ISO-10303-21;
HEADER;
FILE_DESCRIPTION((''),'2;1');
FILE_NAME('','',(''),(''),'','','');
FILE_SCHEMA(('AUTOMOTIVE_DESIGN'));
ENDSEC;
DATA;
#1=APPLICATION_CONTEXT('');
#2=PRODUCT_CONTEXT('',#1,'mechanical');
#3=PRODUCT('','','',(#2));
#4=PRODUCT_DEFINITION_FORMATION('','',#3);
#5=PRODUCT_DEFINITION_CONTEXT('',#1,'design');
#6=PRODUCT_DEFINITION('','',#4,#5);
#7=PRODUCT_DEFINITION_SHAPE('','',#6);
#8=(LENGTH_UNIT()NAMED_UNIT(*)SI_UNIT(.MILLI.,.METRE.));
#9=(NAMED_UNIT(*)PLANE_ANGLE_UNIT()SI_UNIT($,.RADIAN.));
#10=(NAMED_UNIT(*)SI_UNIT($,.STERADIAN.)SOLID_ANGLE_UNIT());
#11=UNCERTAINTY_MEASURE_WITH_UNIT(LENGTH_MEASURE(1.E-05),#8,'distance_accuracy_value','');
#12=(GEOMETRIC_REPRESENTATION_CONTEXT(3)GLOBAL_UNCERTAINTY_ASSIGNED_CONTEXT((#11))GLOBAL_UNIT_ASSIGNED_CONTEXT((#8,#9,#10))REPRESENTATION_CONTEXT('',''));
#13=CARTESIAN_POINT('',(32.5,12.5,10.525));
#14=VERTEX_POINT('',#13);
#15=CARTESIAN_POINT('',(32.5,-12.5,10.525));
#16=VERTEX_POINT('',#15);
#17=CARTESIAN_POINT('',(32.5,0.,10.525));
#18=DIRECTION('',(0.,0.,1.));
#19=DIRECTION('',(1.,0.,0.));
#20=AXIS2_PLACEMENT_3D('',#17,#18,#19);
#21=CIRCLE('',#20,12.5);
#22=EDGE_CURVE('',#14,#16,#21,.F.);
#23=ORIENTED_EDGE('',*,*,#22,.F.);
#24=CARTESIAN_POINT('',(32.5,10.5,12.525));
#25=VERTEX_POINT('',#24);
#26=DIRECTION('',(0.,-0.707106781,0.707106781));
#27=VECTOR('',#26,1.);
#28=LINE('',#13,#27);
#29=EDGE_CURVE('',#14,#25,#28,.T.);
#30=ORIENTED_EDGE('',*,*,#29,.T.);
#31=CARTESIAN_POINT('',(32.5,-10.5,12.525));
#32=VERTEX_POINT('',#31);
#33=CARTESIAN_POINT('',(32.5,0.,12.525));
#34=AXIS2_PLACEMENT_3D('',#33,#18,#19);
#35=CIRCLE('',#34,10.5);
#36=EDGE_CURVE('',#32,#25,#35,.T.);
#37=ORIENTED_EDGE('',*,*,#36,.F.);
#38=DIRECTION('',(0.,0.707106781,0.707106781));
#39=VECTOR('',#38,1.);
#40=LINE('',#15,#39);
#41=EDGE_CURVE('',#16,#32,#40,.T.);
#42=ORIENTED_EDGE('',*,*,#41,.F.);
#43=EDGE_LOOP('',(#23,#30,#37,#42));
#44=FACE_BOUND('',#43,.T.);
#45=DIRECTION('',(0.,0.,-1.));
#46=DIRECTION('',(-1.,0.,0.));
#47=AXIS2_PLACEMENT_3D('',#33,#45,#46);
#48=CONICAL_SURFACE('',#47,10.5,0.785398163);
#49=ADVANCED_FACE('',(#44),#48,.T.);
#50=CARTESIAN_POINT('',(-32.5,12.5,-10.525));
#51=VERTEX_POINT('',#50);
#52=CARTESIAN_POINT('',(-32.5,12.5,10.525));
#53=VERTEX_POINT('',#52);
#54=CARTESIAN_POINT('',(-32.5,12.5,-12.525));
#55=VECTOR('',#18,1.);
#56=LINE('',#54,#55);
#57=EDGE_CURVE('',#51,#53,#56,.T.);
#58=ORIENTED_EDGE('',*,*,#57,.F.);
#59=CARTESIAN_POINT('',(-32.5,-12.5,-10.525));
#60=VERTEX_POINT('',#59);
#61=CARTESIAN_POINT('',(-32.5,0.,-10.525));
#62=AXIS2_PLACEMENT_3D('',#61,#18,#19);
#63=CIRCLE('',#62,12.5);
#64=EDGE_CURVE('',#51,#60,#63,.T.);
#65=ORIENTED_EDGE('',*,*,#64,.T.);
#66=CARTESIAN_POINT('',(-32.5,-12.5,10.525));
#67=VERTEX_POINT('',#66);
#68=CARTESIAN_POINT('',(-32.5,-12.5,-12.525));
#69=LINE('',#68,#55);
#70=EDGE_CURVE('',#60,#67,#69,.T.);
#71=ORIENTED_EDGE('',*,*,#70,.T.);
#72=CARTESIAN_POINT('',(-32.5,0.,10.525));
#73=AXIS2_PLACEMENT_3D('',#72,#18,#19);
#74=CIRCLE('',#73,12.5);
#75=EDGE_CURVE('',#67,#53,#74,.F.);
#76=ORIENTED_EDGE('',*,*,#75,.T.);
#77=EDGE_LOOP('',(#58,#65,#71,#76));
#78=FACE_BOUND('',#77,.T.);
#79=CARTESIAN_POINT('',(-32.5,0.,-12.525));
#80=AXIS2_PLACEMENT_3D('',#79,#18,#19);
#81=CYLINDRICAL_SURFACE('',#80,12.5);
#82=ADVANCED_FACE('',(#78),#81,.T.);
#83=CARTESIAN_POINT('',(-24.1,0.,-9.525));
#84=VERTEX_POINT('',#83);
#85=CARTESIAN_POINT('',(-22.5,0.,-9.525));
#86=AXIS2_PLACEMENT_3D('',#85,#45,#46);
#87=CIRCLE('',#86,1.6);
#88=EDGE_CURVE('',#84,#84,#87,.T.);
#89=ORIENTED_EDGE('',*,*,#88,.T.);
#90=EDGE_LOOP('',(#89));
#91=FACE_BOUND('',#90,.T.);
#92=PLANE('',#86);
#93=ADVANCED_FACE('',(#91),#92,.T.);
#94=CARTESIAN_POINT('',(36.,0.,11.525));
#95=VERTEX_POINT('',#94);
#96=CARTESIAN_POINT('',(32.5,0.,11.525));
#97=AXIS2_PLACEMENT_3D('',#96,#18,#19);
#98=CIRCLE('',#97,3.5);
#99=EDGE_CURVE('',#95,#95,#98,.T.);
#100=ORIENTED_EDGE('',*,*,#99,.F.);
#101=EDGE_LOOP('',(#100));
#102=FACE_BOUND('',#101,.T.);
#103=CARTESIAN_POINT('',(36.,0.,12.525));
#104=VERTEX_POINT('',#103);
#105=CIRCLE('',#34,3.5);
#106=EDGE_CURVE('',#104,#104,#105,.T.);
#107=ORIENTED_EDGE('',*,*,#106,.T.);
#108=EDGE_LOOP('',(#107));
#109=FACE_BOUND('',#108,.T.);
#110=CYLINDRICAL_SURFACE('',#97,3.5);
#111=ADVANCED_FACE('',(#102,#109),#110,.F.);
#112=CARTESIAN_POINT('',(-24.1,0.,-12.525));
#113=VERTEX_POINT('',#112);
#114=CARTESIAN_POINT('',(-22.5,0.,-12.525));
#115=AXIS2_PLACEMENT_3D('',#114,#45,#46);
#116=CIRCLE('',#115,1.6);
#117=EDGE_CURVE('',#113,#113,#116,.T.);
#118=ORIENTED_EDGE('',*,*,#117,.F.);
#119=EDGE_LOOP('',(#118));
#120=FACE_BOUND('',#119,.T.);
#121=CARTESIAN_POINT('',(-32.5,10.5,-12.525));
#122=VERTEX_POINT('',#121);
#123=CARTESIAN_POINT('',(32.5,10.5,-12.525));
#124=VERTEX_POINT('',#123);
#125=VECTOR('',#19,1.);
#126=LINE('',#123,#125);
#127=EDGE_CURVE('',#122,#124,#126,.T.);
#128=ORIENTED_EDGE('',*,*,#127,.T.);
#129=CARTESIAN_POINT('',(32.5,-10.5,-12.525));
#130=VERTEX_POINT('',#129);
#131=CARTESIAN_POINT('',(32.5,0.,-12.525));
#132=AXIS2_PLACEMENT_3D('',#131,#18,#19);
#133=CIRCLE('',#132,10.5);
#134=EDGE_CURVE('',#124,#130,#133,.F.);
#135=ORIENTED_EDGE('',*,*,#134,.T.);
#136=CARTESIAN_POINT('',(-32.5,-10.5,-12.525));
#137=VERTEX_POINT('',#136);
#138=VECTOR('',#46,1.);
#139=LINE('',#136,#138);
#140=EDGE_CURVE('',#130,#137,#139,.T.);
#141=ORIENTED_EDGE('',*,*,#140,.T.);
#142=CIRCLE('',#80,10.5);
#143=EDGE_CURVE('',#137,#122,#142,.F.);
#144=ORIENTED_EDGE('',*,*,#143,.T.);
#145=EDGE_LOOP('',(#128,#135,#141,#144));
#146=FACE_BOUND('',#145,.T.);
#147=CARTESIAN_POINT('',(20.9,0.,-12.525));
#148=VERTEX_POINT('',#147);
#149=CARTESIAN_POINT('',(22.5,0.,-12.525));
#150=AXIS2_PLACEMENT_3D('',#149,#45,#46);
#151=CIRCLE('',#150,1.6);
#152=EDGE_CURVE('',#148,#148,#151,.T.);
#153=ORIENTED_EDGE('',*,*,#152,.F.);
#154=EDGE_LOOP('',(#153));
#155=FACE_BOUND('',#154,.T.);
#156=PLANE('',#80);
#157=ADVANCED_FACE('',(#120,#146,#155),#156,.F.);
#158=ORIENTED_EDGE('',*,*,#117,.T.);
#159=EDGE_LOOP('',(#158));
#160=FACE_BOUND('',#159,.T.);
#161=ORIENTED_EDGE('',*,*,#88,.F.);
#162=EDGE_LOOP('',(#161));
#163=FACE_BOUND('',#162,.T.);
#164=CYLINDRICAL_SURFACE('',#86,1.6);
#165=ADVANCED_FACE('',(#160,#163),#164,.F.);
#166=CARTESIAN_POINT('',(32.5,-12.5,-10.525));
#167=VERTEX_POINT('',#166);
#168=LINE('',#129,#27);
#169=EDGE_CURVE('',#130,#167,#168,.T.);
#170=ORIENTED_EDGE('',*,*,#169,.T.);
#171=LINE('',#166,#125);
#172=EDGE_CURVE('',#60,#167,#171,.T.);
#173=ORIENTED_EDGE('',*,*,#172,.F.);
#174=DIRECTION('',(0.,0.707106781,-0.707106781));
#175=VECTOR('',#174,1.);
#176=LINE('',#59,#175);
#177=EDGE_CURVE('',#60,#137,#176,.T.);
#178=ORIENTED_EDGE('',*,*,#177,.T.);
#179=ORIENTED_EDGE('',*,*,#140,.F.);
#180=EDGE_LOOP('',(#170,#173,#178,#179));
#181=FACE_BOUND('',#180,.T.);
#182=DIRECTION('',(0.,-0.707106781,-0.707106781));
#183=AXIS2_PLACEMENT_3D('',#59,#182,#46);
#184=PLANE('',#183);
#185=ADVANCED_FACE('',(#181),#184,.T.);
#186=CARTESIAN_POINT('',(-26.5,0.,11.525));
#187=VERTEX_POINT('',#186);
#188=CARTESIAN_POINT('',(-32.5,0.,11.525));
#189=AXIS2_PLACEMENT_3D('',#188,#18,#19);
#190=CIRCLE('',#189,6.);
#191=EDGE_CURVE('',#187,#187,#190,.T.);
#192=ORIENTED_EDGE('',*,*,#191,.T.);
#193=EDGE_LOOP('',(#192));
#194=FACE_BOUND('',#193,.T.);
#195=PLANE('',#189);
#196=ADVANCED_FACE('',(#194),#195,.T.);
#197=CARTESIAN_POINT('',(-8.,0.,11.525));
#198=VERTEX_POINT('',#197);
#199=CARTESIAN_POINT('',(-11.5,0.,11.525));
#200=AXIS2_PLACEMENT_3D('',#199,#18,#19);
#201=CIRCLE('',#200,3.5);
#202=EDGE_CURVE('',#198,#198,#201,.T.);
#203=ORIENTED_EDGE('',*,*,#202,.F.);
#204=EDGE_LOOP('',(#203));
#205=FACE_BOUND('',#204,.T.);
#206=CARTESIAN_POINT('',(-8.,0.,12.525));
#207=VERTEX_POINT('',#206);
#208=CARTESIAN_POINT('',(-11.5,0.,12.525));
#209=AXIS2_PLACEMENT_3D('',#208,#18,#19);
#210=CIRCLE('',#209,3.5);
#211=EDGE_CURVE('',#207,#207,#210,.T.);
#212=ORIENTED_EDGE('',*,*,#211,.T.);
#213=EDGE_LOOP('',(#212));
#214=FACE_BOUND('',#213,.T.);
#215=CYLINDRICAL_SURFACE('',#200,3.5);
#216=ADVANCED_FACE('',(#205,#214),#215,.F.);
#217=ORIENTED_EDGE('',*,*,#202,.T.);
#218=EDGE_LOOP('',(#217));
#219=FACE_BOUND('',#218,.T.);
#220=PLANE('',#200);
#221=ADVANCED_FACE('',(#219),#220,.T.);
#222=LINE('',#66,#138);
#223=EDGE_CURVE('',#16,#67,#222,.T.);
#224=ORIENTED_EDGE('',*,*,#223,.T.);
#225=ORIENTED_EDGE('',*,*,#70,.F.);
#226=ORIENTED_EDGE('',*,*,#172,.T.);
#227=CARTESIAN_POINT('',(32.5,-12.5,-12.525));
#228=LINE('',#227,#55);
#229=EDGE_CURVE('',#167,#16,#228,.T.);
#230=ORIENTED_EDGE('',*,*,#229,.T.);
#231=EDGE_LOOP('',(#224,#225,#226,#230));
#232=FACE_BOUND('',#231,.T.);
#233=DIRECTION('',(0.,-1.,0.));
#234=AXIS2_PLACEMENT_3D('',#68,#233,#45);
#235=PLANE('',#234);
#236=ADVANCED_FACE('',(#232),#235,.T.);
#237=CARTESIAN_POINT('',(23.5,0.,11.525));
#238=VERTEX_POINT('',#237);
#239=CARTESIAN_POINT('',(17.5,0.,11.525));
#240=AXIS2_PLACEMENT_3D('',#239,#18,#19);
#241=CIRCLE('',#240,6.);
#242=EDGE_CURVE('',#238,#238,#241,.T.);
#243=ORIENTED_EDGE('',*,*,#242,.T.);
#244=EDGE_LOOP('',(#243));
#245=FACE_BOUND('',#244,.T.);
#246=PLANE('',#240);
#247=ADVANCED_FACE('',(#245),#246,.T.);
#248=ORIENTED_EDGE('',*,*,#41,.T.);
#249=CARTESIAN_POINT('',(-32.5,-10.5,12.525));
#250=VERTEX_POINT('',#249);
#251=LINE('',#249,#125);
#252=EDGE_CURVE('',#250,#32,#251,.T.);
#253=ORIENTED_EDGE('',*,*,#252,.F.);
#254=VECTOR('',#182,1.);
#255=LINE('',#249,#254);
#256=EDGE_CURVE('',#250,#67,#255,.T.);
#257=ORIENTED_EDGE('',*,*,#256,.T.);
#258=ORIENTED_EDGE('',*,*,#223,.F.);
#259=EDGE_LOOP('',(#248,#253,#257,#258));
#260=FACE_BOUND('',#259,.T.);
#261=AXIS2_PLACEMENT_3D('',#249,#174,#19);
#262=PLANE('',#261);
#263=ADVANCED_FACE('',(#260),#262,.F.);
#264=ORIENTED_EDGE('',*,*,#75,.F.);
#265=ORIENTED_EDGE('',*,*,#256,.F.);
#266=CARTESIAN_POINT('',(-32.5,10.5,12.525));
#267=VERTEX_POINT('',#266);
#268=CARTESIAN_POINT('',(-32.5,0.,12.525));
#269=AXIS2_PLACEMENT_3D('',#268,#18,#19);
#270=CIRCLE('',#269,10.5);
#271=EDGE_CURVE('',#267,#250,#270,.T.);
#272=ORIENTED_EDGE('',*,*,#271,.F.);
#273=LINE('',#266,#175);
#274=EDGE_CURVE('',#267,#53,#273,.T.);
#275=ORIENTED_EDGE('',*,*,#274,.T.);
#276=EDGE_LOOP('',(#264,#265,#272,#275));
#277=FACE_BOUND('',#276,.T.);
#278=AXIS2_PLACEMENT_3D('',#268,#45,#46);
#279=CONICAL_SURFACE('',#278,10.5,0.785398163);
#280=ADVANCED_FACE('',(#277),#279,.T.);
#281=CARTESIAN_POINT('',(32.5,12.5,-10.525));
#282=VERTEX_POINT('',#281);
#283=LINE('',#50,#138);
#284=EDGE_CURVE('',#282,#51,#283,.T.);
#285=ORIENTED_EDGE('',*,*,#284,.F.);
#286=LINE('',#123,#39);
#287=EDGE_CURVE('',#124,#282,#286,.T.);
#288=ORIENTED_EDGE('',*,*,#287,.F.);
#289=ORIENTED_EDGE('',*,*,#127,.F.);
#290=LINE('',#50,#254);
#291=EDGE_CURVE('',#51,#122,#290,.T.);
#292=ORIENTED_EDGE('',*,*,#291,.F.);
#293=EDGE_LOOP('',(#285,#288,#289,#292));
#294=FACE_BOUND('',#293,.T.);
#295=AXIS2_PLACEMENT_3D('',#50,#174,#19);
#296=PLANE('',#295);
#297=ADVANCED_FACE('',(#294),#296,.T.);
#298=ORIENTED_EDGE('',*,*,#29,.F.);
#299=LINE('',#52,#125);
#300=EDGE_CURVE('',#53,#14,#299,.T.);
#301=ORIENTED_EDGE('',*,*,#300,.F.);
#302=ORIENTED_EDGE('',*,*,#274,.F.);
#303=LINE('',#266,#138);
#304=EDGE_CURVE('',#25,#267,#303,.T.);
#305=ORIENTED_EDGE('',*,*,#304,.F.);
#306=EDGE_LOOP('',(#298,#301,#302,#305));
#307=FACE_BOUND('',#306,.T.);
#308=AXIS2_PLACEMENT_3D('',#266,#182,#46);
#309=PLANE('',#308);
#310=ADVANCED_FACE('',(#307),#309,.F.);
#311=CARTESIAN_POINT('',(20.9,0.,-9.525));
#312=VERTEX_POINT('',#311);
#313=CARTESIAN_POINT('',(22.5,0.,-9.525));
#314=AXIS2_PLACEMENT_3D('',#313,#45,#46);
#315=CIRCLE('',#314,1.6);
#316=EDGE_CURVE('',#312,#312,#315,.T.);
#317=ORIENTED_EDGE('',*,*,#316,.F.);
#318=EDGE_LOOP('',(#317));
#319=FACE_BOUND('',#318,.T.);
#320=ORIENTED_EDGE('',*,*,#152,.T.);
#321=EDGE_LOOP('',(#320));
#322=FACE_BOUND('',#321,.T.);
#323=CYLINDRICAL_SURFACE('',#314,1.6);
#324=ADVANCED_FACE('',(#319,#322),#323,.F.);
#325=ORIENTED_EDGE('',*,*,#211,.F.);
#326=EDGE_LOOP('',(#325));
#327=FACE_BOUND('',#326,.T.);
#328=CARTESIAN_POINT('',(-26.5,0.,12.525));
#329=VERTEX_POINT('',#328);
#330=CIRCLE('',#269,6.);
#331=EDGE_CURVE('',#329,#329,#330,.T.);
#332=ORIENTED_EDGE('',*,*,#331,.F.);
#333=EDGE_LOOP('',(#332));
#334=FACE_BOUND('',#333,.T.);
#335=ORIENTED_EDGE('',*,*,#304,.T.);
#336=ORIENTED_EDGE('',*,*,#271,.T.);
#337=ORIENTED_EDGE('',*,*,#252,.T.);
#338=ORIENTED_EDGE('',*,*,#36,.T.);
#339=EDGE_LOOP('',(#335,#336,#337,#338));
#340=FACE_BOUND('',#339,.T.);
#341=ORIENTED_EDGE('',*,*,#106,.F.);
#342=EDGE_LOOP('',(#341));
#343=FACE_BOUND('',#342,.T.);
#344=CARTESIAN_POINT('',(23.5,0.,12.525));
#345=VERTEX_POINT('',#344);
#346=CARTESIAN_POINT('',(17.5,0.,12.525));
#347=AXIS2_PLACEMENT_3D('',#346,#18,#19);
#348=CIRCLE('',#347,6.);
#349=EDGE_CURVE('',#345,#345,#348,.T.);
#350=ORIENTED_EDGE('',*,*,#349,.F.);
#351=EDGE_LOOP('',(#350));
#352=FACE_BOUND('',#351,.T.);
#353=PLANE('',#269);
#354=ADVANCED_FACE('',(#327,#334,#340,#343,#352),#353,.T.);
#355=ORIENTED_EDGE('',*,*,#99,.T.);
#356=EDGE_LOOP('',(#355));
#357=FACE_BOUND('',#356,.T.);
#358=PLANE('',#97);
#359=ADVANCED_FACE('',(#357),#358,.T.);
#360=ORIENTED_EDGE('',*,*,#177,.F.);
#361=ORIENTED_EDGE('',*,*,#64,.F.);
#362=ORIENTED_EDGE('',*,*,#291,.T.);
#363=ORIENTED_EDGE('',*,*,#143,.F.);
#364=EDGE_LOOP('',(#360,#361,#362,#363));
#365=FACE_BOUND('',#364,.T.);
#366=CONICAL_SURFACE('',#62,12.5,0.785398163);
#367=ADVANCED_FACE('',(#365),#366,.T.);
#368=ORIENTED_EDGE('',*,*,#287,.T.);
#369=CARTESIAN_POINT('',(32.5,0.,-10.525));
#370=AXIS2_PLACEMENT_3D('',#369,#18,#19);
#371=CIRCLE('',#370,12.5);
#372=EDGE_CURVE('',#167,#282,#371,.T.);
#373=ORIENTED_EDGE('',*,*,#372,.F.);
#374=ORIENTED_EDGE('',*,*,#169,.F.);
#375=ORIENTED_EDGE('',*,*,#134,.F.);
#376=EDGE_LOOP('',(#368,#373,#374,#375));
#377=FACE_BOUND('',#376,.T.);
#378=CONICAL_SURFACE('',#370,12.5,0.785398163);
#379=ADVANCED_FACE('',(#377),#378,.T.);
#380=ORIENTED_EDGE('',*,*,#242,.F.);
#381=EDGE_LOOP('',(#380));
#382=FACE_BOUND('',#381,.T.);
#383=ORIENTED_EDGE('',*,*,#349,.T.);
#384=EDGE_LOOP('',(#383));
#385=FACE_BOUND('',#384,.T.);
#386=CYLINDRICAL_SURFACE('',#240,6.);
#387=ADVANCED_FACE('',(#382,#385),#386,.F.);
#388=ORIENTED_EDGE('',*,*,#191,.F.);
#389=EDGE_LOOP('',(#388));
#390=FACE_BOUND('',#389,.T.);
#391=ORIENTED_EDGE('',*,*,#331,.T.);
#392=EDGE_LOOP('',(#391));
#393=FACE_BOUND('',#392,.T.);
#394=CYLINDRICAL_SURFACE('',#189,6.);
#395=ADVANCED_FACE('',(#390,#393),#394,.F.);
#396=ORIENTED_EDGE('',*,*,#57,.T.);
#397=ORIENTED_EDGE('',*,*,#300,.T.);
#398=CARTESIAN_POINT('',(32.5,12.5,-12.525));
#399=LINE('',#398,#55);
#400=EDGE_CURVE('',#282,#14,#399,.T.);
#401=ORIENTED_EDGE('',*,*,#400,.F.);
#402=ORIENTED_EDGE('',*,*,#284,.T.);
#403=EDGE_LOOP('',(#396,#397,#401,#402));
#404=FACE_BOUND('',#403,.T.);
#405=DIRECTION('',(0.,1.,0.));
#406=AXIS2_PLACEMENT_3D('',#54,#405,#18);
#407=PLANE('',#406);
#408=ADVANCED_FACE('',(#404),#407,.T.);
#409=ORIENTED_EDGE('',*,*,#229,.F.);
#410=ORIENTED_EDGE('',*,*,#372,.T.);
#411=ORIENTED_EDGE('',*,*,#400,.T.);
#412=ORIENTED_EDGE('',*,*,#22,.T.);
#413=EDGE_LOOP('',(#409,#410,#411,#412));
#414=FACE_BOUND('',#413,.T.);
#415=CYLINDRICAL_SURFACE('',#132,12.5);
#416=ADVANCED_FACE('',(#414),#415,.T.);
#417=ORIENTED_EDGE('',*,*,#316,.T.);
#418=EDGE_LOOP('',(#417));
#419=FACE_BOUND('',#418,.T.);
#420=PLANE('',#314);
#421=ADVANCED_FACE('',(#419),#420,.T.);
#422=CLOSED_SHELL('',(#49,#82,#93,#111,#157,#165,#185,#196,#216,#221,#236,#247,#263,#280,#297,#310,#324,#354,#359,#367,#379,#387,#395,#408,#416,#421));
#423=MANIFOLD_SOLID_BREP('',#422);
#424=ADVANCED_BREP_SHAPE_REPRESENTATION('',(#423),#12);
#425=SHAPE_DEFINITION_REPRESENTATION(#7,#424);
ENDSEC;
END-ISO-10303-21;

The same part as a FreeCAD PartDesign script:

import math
import FreeCAD as App
import Part
import Sketcher
Q = App.Units.Quantity


def edges_at(feature, points):
    """Names of the edges that pass closest to the given points."""
    edges = feature.Shape.Edges
    near = lambda p: min(range(len(edges)), key=lambda i: edges[i].distToShape(Part.Vertex(*p))[0])
    return sorted({f"Edge{near(p) + 1}" for p in points})

doc = App.newDocument("Part")
body = doc.addObject("PartDesign::Body", "Body")

sketch1 = body.newObject("Sketcher::SketchObject", "Sketch")
sketch1.AttachmentSupport = (doc.getObject("XY_Plane"), [""])
sketch1.MapMode = "FlatFace"
sketch1.addGeometry(Part.LineSegment(App.Vector(32, 12, 0), App.Vector(-32, 12, 0)), False)
sketch1.addGeometry(Part.ArcOfCircle(Part.Circle(App.Vector(-32, 0, 0), App.Vector(0, 0, 1), 12), math.radians(90), math.radians(270)), False)
sketch1.addGeometry(Part.LineSegment(App.Vector(-32, -12, 0), App.Vector(32, -12, 0)), False)
sketch1.addGeometry(Part.ArcOfCircle(Part.Circle(App.Vector(32, 0, 0), App.Vector(0, 0, 1), 12), math.radians(-90), math.radians(90)), False)
sketch1.addConstraint(Sketcher.Constraint("Tangent", 0, 2, 1, 1))
sketch1.addConstraint(Sketcher.Constraint("Tangent", 1, 2, 2, 1))
sketch1.addConstraint(Sketcher.Constraint("Tangent", 2, 2, 3, 1))
sketch1.addConstraint(Sketcher.Constraint("Tangent", 3, 2, 0, 1))
sketch1.addConstraint(Sketcher.Constraint("Horizontal", 0))
sketch1.addConstraint(Sketcher.Constraint("Horizontal", 2))
sketch1.addConstraint(Sketcher.Constraint("Symmetric", 1, 3, 3, 3, -1, 1))
sketch1.addConstraint(Sketcher.Constraint("Radius", 1, Q("12.5 mm")))
sketch1.addConstraint(Sketcher.Constraint("DistanceX", 0, 2, 0, 1, Q("65 mm")))
pad1 = body.newObject("PartDesign::Pad", "Pad")
pad1.Profile = sketch1
pad1.Type = "TwoLengths"
pad1.Length = 12.525
pad1.Length2 = 12.525

sketch2 = body.newObject("Sketcher::SketchObject", "Sketch001")
sketch2.AttachmentSupport = (doc.getObject("XY_Plane"), [""])
sketch2.MapMode = "FlatFace"
sketch2.AttachmentOffset = App.Placement(App.Vector(0, 0, 12.525), App.Rotation())
sketch2.addGeometry(Part.Circle(App.Vector(-32.5, 0, 0), App.Vector(0, 0, 1), 6), False)
sketch2.addGeometry(Part.Circle(App.Vector(-11.5, 0, 0), App.Vector(0, 0, 1), 3.5), False)
sketch2.addGeometry(Part.Circle(App.Vector(17.5, 0, 0), App.Vector(0, 0, 1), 6), False)
sketch2.addGeometry(Part.Circle(App.Vector(32.5, 0, 0), App.Vector(0, 0, 1), 3.5), False)
sketch2.addConstraint(Sketcher.Constraint("Equal", 0, 2))
sketch2.addConstraint(Sketcher.Constraint("Equal", 1, 3))
sketch2.addConstraint(Sketcher.Constraint("Symmetric", 0, 3, 3, 3, -1, 1))
sketch2.addConstraint(Sketcher.Constraint("PointOnObject", 0, 3, -1))
sketch2.addConstraint(Sketcher.Constraint("PointOnObject", 1, 3, -1))
sketch2.addConstraint(Sketcher.Constraint("PointOnObject", 2, 3, -1))
sketch2.addConstraint(Sketcher.Constraint("Diameter", 0, Q("12 mm")))
sketch2.addConstraint(Sketcher.Constraint("Diameter", 1, Q("7 mm")))
sketch2.addConstraint(Sketcher.Constraint("DistanceX", 0, 3, 1, 3, Q("21 mm")))
sketch2.addConstraint(Sketcher.Constraint("DistanceX", 1, 3, 2, 3, Q("29 mm")))
sketch2.addConstraint(Sketcher.Constraint("DistanceX", 2, 3, 3, 3, Q("15 mm")))
pocket1 = body.newObject("PartDesign::Pocket", "Pocket")
pocket1.Profile = sketch2
pocket1.Length = 1

sketch3 = body.newObject("Sketcher::SketchObject", "Sketch002")
sketch3.AttachmentSupport = (doc.getObject("XY_Plane"), [""])
sketch3.MapMode = "FlatFace"
sketch3.AttachmentOffset = App.Placement(App.Vector(0, 0, -12.525), App.Rotation())
sketch3.addGeometry(Part.Circle(App.Vector(-22.5, 0, 0), App.Vector(0, 0, 1), 1.6), False)
sketch3.addGeometry(Part.Circle(App.Vector(22.5, 0, 0), App.Vector(0, 0, 1), 1.6), False)
sketch3.addConstraint(Sketcher.Constraint("Equal", 0, 1))
sketch3.addConstraint(Sketcher.Constraint("Symmetric", 0, 3, 1, 3, -1, 1))
sketch3.addConstraint(Sketcher.Constraint("PointOnObject", 0, 3, -1))
sketch3.addConstraint(Sketcher.Constraint("Diameter", 0, Q("3.2 mm")))
sketch3.addConstraint(Sketcher.Constraint("DistanceX", 0, 3, 1, 3, Q("45 mm")))
pocket2 = body.newObject("PartDesign::Pocket", "Pocket001")
pocket2.Profile = sketch3
pocket2.Length = 3
pocket2.Reversed = True
doc.recompute()

chamfer = body.newObject("PartDesign::Chamfer", "Chamfer")
chamfer.Base = (pocket2, edges_at(pocket2, [
    (-45, 0, 12.525),
    (45, 0, -12.525),
    (0, -12.5, 12.525),
    (45, 0, 12.525),
    (0, 12.5, 12.525),
    (0, 12.5, -12.525),
    (-45, 0, -12.525),
    (0, -12.5, -12.525),
]))
chamfer.Size = 2

doc.recompute()
